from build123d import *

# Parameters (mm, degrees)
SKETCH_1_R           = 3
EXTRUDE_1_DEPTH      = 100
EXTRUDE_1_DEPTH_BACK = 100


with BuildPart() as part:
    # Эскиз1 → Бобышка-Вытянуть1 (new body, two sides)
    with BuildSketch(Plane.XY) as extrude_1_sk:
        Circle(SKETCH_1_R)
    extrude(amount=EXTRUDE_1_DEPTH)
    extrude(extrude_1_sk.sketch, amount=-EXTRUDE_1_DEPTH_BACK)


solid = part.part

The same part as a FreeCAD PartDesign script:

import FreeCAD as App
import Part
import Sketcher

V = App.Vector

doc = App.newDocument("Part")
body = doc.addObject("PartDesign::Body", "Body")

# Sketch on XY plane
sketch1 = body.newObject("Sketcher::SketchObject", "Sketch")
sketch1.AttachmentSupport = (doc.getObject("XY_Plane"), [""])
sketch1.MapMode = "FlatFace"
sketch1.addGeometry(Part.Circle(V(0, 0, 0), V(0, 0, 1), 3), False)
sketch1.addConstraint(Sketcher.Constraint("Coincident", 0, 3, -1, 1))
sketch1.addConstraint(Sketcher.Constraint("Diameter", 0, 6.0))
pad1 = body.newObject("PartDesign::Pad", "Pad")
pad1.Profile = sketch1
pad1.Type = "TwoLengths"
pad1.Length = 100
pad1.Length2 = 100

doc.recompute()
